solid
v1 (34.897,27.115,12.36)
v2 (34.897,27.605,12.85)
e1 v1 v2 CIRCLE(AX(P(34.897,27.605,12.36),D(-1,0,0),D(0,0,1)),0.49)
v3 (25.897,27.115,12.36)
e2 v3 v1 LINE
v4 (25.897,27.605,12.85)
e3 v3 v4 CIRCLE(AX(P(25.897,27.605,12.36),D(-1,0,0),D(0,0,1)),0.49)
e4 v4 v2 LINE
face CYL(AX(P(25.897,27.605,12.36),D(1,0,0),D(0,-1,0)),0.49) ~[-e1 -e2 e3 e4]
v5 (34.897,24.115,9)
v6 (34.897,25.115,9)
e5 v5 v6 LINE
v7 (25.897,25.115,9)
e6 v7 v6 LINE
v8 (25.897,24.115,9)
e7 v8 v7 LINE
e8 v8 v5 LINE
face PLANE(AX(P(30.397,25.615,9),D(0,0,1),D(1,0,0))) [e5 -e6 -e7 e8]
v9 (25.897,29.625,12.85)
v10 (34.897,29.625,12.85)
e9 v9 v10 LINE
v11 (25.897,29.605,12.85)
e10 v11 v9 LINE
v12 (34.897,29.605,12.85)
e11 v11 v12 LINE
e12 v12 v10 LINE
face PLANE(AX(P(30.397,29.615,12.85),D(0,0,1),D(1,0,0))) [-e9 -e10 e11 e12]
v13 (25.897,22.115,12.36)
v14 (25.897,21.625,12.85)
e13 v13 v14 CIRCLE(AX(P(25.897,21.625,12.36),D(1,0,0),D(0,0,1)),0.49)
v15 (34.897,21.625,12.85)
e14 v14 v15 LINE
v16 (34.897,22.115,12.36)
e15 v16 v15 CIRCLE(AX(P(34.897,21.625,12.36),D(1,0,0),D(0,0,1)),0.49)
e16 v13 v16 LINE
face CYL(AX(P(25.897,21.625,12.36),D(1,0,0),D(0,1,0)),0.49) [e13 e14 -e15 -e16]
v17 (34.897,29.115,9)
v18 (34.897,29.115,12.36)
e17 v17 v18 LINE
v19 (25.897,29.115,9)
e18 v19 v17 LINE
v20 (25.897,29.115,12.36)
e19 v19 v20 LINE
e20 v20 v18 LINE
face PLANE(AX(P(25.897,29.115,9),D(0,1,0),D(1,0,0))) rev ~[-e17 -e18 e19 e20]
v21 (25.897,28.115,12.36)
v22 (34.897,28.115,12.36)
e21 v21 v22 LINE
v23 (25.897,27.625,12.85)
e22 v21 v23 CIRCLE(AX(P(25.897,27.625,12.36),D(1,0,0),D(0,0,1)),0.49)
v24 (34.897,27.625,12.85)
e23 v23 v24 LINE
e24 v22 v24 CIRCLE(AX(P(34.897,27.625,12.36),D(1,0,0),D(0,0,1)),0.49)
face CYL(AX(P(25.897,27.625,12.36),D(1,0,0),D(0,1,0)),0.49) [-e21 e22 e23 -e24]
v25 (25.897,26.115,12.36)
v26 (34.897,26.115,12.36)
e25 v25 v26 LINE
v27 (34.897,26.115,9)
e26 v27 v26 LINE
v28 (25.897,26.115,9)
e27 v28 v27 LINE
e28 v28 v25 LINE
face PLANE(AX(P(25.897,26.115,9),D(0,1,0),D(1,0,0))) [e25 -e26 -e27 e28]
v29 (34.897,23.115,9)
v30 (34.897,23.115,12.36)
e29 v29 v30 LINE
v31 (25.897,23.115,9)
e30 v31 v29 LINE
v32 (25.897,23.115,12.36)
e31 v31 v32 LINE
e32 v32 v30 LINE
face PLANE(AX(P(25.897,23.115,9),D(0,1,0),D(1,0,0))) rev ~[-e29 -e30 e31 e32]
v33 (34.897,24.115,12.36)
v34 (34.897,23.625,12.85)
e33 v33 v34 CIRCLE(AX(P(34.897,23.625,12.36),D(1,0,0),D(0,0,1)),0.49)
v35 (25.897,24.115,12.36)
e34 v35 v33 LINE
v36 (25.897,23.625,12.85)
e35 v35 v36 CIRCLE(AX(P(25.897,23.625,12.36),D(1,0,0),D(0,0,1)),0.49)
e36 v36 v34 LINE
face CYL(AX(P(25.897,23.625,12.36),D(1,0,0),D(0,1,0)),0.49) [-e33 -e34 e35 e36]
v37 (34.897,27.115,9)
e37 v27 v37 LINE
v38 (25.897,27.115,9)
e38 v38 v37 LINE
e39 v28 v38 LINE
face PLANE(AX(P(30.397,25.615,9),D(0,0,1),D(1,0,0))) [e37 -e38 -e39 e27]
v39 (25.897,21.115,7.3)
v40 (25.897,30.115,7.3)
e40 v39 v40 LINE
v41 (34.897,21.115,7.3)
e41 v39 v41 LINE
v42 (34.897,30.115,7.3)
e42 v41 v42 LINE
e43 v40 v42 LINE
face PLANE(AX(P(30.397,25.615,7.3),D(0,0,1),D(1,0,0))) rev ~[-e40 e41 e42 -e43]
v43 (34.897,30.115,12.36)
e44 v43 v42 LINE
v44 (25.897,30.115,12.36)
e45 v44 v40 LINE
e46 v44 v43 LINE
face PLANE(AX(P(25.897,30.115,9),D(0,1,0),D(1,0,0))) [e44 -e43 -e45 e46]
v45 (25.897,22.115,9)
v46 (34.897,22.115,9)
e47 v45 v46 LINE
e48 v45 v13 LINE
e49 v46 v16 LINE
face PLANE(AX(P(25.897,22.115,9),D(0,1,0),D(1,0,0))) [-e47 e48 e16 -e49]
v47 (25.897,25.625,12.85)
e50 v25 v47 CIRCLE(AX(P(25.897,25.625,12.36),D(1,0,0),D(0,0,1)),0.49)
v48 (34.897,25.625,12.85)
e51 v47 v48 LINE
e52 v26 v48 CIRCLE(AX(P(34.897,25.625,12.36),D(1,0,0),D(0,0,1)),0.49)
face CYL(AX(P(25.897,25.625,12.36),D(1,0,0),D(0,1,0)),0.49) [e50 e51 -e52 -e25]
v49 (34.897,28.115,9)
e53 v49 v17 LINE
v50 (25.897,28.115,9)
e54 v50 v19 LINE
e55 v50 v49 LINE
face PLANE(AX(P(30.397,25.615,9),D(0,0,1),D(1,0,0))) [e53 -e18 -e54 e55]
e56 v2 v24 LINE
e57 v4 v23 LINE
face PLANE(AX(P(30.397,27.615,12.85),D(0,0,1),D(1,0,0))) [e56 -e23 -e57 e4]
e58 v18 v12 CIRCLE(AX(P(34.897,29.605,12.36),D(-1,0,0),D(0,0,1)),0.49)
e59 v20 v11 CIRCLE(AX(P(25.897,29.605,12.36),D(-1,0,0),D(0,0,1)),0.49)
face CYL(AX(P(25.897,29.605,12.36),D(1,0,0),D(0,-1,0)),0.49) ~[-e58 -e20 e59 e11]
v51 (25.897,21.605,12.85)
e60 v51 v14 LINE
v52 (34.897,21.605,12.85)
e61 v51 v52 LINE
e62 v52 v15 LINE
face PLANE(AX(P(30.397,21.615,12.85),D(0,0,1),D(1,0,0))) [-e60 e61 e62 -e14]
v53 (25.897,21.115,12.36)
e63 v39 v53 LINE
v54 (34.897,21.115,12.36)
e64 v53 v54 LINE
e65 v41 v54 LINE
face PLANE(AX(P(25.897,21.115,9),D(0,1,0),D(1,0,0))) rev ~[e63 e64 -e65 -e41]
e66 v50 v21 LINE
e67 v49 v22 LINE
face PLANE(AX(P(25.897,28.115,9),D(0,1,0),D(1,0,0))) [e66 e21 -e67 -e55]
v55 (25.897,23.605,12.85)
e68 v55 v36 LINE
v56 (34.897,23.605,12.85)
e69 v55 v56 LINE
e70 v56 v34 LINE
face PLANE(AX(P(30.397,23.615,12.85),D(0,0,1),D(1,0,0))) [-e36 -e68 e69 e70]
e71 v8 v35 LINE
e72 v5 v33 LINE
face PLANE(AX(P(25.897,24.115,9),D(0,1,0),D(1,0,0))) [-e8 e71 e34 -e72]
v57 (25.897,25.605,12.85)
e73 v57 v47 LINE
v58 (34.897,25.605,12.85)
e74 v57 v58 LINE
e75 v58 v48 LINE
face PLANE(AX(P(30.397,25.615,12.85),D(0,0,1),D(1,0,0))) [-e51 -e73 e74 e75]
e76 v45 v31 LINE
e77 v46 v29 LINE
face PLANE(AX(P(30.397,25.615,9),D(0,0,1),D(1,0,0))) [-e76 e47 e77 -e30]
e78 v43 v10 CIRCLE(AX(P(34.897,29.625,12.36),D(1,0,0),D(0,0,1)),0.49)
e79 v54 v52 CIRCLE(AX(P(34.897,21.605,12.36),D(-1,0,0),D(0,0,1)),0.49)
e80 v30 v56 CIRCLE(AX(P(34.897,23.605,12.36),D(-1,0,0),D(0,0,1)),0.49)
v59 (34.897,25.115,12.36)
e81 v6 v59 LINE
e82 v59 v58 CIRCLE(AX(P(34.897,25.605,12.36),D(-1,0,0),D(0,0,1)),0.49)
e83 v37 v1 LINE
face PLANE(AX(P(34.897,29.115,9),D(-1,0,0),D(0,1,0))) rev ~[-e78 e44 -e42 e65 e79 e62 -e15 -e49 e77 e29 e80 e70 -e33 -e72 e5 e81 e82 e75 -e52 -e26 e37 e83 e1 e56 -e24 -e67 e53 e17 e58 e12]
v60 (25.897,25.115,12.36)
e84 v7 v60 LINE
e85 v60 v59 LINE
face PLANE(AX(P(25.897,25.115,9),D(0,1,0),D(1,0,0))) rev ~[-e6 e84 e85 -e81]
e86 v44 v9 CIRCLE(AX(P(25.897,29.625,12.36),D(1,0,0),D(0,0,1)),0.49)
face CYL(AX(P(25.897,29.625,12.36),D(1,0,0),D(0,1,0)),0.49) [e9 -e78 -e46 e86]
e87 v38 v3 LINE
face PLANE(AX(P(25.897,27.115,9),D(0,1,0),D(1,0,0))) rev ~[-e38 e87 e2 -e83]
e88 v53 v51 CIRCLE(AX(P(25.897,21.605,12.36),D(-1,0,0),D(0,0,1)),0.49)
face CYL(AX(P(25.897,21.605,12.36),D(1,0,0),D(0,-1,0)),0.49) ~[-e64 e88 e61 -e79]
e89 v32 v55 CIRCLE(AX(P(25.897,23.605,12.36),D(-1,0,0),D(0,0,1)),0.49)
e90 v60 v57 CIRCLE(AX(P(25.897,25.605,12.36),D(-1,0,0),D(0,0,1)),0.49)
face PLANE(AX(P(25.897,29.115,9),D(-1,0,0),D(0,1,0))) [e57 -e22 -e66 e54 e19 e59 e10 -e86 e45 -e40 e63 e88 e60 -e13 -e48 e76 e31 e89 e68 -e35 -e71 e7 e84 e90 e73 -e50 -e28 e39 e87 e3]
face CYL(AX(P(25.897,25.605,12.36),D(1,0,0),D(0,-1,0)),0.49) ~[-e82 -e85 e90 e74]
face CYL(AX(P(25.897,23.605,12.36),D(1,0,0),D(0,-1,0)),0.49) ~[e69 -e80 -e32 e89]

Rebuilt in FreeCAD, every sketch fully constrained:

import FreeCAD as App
import Part
import Sketcher

V = App.Vector
Q = App.Units.Quantity


def edges_at(feature, points):
    """Names of the edges that pass closest to the given points."""
    edges = feature.Shape.Edges
    near = lambda p: min(range(len(edges)), key=lambda i: edges[i].distToShape(Part.Vertex(*p))[0])
    return sorted({f"Edge{near(p) + 1}" for p in points})


def add_polygon(sketch, points):
    """Adds a closed chain of lines whose ends are joined by coincident constraints."""
    first, n = sketch.GeometryCount, len(points)
    for a, b in zip(points, points[1:] + points[:1]):
        sketch.addGeometry(Part.LineSegment(App.Vector(*a, 0), App.Vector(*b, 0)), False)
    for i in range(n):
        sketch.addConstraint(Sketcher.Constraint("Coincident", first + i, 2, first + (i + 1) % n, 1))

doc = App.newDocument("Part")
body = doc.addObject("PartDesign::Body", "Body")

sketch1 = body.newObject("Sketcher::SketchObject", "Sketch")
sketch1.AttachmentSupport = (doc.getObject("XY_Plane"), [""])
sketch1.MapMode = "FlatFace"
sketch1.AttachmentOffset = App.Placement(V(0, 0, 10), App.Rotation())
add_polygon(sketch1, [(25.897, 22.115), (25.897, 21.115), (34.897, 21.115), (34.897, 22.115)])
sketch1.addConstraint(Sketcher.Constraint("Vertical", 0))
sketch1.addConstraint(Sketcher.Constraint("Horizontal", 1))
sketch1.addConstraint(Sketcher.Constraint("Vertical", 2))
sketch1.addConstraint(Sketcher.Constraint("Horizontal", 3))
sketch1.addConstraint(Sketcher.Constraint("DistanceX", 1, 1, 1, 2, Q("9 mm")))
sketch1.addConstraint(Sketcher.Constraint("DistanceY", 0, 2, 0, 1, Q("1 mm")))
sketch1.addConstraint(Sketcher.Constraint("DistanceX", -1, 1, 0, 2, Q("25.897 mm")))
sketch1.addConstraint(Sketcher.Constraint("DistanceY", -1, 1, 0, 2, Q("21.115 mm")))
pad1 = body.newObject("PartDesign::Pad", "Pad")
pad1.Profile = sketch1
pad1.Length = 3.85
doc.recompute()

fillet = body.newObject("PartDesign::Fillet", "Fillet")
fillet.Base = (pad1, edges_at(pad1, [(30.397, 21.115, 13.85), (30.397, 22.115, 13.85)]))
fillet.Radius = 0.49
body2 = doc.addObject("PartDesign::Body", "Body001")

sketch2 = body2.newObject("Sketcher::SketchObject", "Sketch001")
sketch2.AttachmentSupport = (doc.getObject("XY_Plane001"), [""])
sketch2.MapMode = "FlatFace"
sketch2.AttachmentOffset = App.Placement(V(0, 0, 10), App.Rotation())
add_polygon(sketch2, [(25.897, 22.115), (25.897, 21.115), (34.897, 21.115), (34.897, 22.115)])
sketch2.addConstraint(Sketcher.Constraint("Vertical", 0))
sketch2.addConstraint(Sketcher.Constraint("Horizontal", 1))
sketch2.addConstraint(Sketcher.Constraint("Vertical", 2))
sketch2.addConstraint(Sketcher.Constraint("Horizontal", 3))
sketch2.addConstraint(Sketcher.Constraint("DistanceX", 1, 1, 1, 2, Q("9 mm")))
sketch2.addConstraint(Sketcher.Constraint("DistanceY", 0, 2, 0, 1, Q("1 mm")))
sketch2.addConstraint(Sketcher.Constraint("DistanceX", -1, 1, 0, 2, Q("25.897 mm")))
sketch2.addConstraint(Sketcher.Constraint("DistanceY", -1, 1, 0, 2, Q("21.115 mm")))
pad2 = body2.newObject("PartDesign::Pad", "Pad001")
pad2.Profile = sketch2
pad2.Length = 3.85
doc.recompute()

fillet2 = body2.newObject("PartDesign::Fillet", "Fillet001")
fillet2.Base = (pad2, edges_at(pad2, [(30.397, 21.115, 13.85), (30.397, 22.115, 13.85)]))
fillet2.Radius = 0.49
body3 = doc.addObject("PartDesign::Body", "Body002")
doc.recompute()

body2.Placement = App.Placement(V(0, 2, 0), App.Rotation(V(0, 0, 1), 0))
boolean = body3.newObject("PartDesign::Boolean", "Boolean")
boolean.Type = "Fuse"
boolean.addObjects([body2])
body4 = doc.addObject("PartDesign::Body", "Body003")

sketch3 = body4.newObject("Sketcher::SketchObject", "Sketch002")
sketch3.AttachmentSupport = (doc.getObject("XY_Plane003"), [""])
sketch3.MapMode = "FlatFace"
sketch3.AttachmentOffset = App.Placement(V(0, 0, 10), App.Rotation())
add_polygon(sketch3, [(25.897, 22.115), (25.897, 21.115), (34.897, 21.115), (34.897, 22.115)])
sketch3.addConstraint(Sketcher.Constraint("Vertical", 0))
sketch3.addConstraint(Sketcher.Constraint("Horizontal", 1))
sketch3.addConstraint(Sketcher.Constraint("Vertical", 2))
sketch3.addConstraint(Sketcher.Constraint("Horizontal", 3))
sketch3.addConstraint(Sketcher.Constraint("DistanceX", 1, 1, 1, 2, Q("9 mm")))
sketch3.addConstraint(Sketcher.Constraint("DistanceY", 0, 2, 0, 1, Q("1 mm")))
sketch3.addConstraint(Sketcher.Constraint("DistanceX", -1, 1, 0, 2, Q("25.897 mm")))
sketch3.addConstraint(Sketcher.Constraint("DistanceY", -1, 1, 0, 2, Q("21.115 mm")))
pad3 = body4.newObject("PartDesign::Pad", "Pad002")
pad3.Profile = sketch3
pad3.Length = 3.85
doc.recompute()

fillet3 = body4.newObject("PartDesign::Fillet", "Fillet002")
fillet3.Base = (pad3, edges_at(pad3, [(30.397, 21.115, 13.85), (30.397, 22.115, 13.85)]))
fillet3.Radius = 0.49
body5 = doc.addObject("PartDesign::Body", "Body004")
doc.recompute()

body4.Placement = App.Placement(V(0, 4, 0), App.Rotation(V(0, 0, 1), 0))
boolean2 = body5.newObject("PartDesign::Boolean", "Boolean001")
boolean2.Type = "Fuse"
boolean2.addObjects([body4])
body6 = doc.addObject("PartDesign::Body", "Body005")

sketch4 = body6.newObject("Sketcher::SketchObject", "Sketch003")
sketch4.AttachmentSupport = (doc.getObject("XY_Plane005"), [""])
sketch4.MapMode = "FlatFace"
sketch4.AttachmentOffset = App.Placement(V(0, 0, 10), App.Rotation())
add_polygon(sketch4, [(25.897, 22.115), (25.897, 21.115), (34.897, 21.115), (34.897, 22.115)])
sketch4.addConstraint(Sketcher.Constraint("Vertical", 0))
sketch4.addConstraint(Sketcher.Constraint("Horizontal", 1))
sketch4.addConstraint(Sketcher.Constraint("Vertical", 2))
sketch4.addConstraint(Sketcher.Constraint("Horizontal", 3))
sketch4.addConstraint(Sketcher.Constraint("DistanceX", 1, 1, 1, 2, Q("9 mm")))
sketch4.addConstraint(Sketcher.Constraint("DistanceY", 0, 2, 0, 1, Q("1 mm")))
sketch4.addConstraint(Sketcher.Constraint("DistanceX", -1, 1, 0, 2, Q("25.897 mm")))
sketch4.addConstraint(Sketcher.Constraint("DistanceY", -1, 1, 0, 2, Q("21.115 mm")))
pad4 = body6.newObject("PartDesign::Pad", "Pad003")
pad4.Profile = sketch4
pad4.Length = 3.85
doc.recompute()

fillet4 = body6.newObject("PartDesign::Fillet", "Fillet003")
fillet4.Base = (pad4, edges_at(pad4, [(30.397, 21.115, 13.85), (30.397, 22.115, 13.85)]))
fillet4.Radius = 0.49
body7 = doc.addObject("PartDesign::Body", "Body006")
doc.recompute()

body6.Placement = App.Placement(V(0, 6, 0), App.Rotation(V(0, 0, 1), 0))
boolean3 = body7.newObject("PartDesign::Boolean", "Boolean002")
boolean3.Type = "Fuse"
boolean3.addObjects([body6])
body8 = doc.addObject("PartDesign::Body", "Body007")

sketch5 = body8.newObject("Sketcher::SketchObject", "Sketch004")
sketch5.AttachmentSupport = (doc.getObject("XY_Plane007"), [""])
sketch5.MapMode = "FlatFace"
sketch5.AttachmentOffset = App.Placement(V(0, 0, 10), App.Rotation())
add_polygon(sketch5, [(25.897, 22.115), (25.897, 21.115), (34.897, 21.115), (34.897, 22.115)])
sketch5.addConstraint(Sketcher.Constraint("Vertical", 0))
sketch5.addConstraint(Sketcher.Constraint("Horizontal", 1))
sketch5.addConstraint(Sketcher.Constraint("Vertical", 2))
sketch5.addConstraint(Sketcher.Constraint("Horizontal", 3))
sketch5.addConstraint(Sketcher.Constraint("DistanceX", 1, 1, 1, 2, Q("9 mm")))
sketch5.addConstraint(Sketcher.Constraint("DistanceY", 0, 2, 0, 1, Q("1 mm")))
sketch5.addConstraint(Sketcher.Constraint("DistanceX", -1, 1, 0, 2, Q("25.897 mm")))
sketch5.addConstraint(Sketcher.Constraint("DistanceY", -1, 1, 0, 2, Q("21.115 mm")))
pad5 = body8.newObject("PartDesign::Pad", "Pad004")
pad5.Profile = sketch5
pad5.Length = 3.85
doc.recompute()

fillet5 = body8.newObject("PartDesign::Fillet", "Fillet004")
fillet5.Base = (pad5, edges_at(pad5, [(30.397, 21.115, 13.85), (30.397, 22.115, 13.85)]))
fillet5.Radius = 0.49
body9 = doc.addObject("PartDesign::Body", "Body008")
doc.recompute()

body8.Placement = App.Placement(V(0, 8, 0), App.Rotation(V(0, 0, 1), 0))
boolean4 = body9.newObject("PartDesign::Boolean", "Boolean003")
boolean4.Type = "Fuse"
boolean4.addObjects([body8])
body10 = doc.addObject("PartDesign::Body", "Body009")

sketch6 = body10.newObject("Sketcher::SketchObject", "Sketch005")
sketch6.AttachmentSupport = (doc.getObject("XY_Plane009"), [""])
sketch6.MapMode = "FlatFace"
sketch6.AttachmentOffset = App.Placement(V(0, 0, 8.3), App.Rotation())
add_polygon(sketch6, [(25.897, 30.115), (25.897, 21.115), (34.897, 21.115), (34.897, 30.115)])
sketch6.addConstraint(Sketcher.Constraint("Vertical", 0))
sketch6.addConstraint(Sketcher.Constraint("Horizontal", 1))
sketch6.addConstraint(Sketcher.Constraint("Vertical", 2))
sketch6.addConstraint(Sketcher.Constraint("Horizontal", 3))
sketch6.addConstraint(Sketcher.Constraint("Equal", 3, 0))
sketch6.addConstraint(Sketcher.Constraint("DistanceX", 1, 1, 1, 2, Q("9 mm")))
sketch6.addConstraint(Sketcher.Constraint("DistanceX", -1, 1, 0, 2, Q("25.897 mm")))
sketch6.addConstraint(Sketcher.Constraint("DistanceY", -1, 1, 0, 2, Q("21.115 mm")))
pad6 = body10.newObject("PartDesign::Pad", "Pad005")
pad6.Profile = sketch6
pad6.Length = 1.7
doc.recompute()

boolean5 = body10.newObject("PartDesign::Boolean", "Boolean004")
boolean5.Type = "Fuse"
boolean5.addObjects([body])
doc.recompute()

boolean6 = body10.newObject("PartDesign::Boolean", "Boolean005")
boolean6.Type = "Fuse"
boolean6.addObjects([body3])
doc.recompute()

boolean7 = body10.newObject("PartDesign::Boolean", "Boolean006")
boolean7.Type = "Fuse"
boolean7.addObjects([body5])
doc.recompute()

boolean8 = body10.newObject("PartDesign::Boolean", "Boolean007")
boolean8.Type = "Fuse"
boolean8.addObjects([body7])
doc.recompute()

boolean9 = body10.newObject("PartDesign::Boolean", "Boolean008")
boolean9.Type = "Fuse"
boolean9.addObjects([body9])
body11 = doc.addObject("PartDesign::Body", "Body010")
doc.recompute()

body10.Placement = App.Placement(V(0, 0, -1), App.Rotation(V(0, 0, 1), 0))
boolean10 = body11.newObject("PartDesign::Boolean", "Boolean009")
boolean10.Type = "Fuse"
boolean10.addObjects([body10])

doc.recompute()
